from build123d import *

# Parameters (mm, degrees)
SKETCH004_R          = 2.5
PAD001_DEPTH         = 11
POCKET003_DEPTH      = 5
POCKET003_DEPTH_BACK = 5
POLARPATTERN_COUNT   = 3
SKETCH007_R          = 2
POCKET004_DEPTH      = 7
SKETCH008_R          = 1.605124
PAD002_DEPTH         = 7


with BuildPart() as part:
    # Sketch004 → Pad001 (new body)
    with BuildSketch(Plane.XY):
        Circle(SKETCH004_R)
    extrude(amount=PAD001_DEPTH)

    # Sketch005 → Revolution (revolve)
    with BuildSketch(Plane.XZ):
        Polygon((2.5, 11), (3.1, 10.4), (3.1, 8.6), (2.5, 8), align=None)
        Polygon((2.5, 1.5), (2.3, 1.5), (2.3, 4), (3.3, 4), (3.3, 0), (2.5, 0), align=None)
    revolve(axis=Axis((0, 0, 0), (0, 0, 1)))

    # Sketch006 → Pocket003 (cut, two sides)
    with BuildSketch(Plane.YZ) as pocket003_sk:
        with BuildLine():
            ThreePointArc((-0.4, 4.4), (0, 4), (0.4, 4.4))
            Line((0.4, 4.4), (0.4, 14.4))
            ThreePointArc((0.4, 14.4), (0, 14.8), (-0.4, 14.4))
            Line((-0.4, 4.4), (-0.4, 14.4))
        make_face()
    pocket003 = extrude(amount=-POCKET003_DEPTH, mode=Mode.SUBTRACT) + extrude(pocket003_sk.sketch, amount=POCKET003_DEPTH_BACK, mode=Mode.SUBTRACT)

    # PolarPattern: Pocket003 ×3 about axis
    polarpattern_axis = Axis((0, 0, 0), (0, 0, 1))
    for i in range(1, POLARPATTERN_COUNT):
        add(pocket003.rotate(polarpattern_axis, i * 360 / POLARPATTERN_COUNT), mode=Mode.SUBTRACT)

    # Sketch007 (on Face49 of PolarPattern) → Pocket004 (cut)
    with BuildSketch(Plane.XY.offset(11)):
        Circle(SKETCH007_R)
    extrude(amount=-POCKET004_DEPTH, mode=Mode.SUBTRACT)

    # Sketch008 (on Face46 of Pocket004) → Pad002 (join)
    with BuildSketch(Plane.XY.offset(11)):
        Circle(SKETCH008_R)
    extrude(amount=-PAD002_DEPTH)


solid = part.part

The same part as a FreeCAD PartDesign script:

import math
import FreeCAD as App
import Part
import Sketcher
from FreeCAD import Vector

doc = App.newDocument("Part")
body = doc.addObject("PartDesign::Body", "Body")

# Sketch on XY plane
sketch1 = body.newObject("Sketcher::SketchObject", "Sketch")
sketch1.AttachmentSupport = (doc.getObject("XY_Plane"), [""])
sketch1.MapMode = "FlatFace"
sketch1.addGeometry(Part.Circle(Vector(0, 0, 0), Vector(0, 0, 1), 2.5), False)
sketch1.addConstraint(Sketcher.Constraint("Coincident", 0, 3, -1, 1))
sketch1.addConstraint(Sketcher.Constraint("Diameter", 0, 5.0))
pad1 = body.newObject("PartDesign::Pad", "Pad")
pad1.Profile = sketch1
pad1.Length = 11

# Sketch on XZ plane
sketch2 = body.newObject("Sketcher::SketchObject", "Sketch001")
sketch2.AttachmentSupport = (doc.getObject("XZ_Plane"), [""])
sketch2.MapMode = "FlatFace"
sketch2.addGeometry(Part.LineSegment(Vector(3.1, 10.4, 0), Vector(2.5, 11, 0)), False)
sketch2.addGeometry(Part.LineSegment(Vector(2.5, 11, 0), Vector(2.5, 8, 0)), False)
sketch2.addGeometry(Part.LineSegment(Vector(2.5, 8, 0), Vector(3.1, 8.6, 0)), False)
sketch2.addGeometry(Part.LineSegment(Vector(3.1, 8.6, 0), Vector(3.1, 10.4, 0)), False)
sketch2.addGeometry(Part.LineSegment(Vector(2.3, 1.5, 0), Vector(2.5, 1.5, 0)), False)
sketch2.addGeometry(Part.LineSegment(Vector(2.5, 1.5, 0), Vector(2.5, 0, 0)), False)
sketch2.addGeometry(Part.LineSegment(Vector(2.5, 0, 0), Vector(3.3, 0, 0)), False)
sketch2.addGeometry(Part.LineSegment(Vector(3.3, 0, 0), Vector(3.3, 4, 0)), False)
sketch2.addGeometry(Part.LineSegment(Vector(3.3, 4, 0), Vector(2.3, 4, 0)), False)
sketch2.addGeometry(Part.LineSegment(Vector(2.3, 4, 0), Vector(2.3, 1.5, 0)), False)
sketch2.addConstraint(Sketcher.Constraint("Coincident", 0, 2, 1, 1))
sketch2.addConstraint(Sketcher.Constraint("Coincident", 1, 2, 2, 1))
sketch2.addConstraint(Sketcher.Constraint("Coincident", 2, 2, 3, 1))
sketch2.addConstraint(Sketcher.Constraint("Coincident", 3, 2, 0, 1))
sketch2.addConstraint(Sketcher.Constraint("Coincident", 4, 2, 5, 1))
sketch2.addConstraint(Sketcher.Constraint("Coincident", 5, 2, 6, 1))
sketch2.addConstraint(Sketcher.Constraint("Coincident", 6, 2, 7, 1))
sketch2.addConstraint(Sketcher.Constraint("Coincident", 7, 2, 8, 1))
sketch2.addConstraint(Sketcher.Constraint("Coincident", 8, 2, 9, 1))
sketch2.addConstraint(Sketcher.Constraint("Coincident", 9, 2, 4, 1))
sketch2.addConstraint(Sketcher.Constraint("Vertical", 1))
sketch2.addConstraint(Sketcher.Constraint("Vertical", 3))
sketch2.addConstraint(Sketcher.Constraint("Horizontal", 4))
sketch2.addConstraint(Sketcher.Constraint("Vertical", 5))
sketch2.addConstraint(Sketcher.Constraint("Horizontal", 6))
sketch2.addConstraint(Sketcher.Constraint("Vertical", 7))
sketch2.addConstraint(Sketcher.Constraint("Horizontal", 8))
sketch2.addConstraint(Sketcher.Constraint("Vertical", 9))
sketch2.addConstraint(Sketcher.Constraint("PointOnObject", 5, 2, -1))
sketch2.addConstraint(Sketcher.Constraint("Perpendicular", 0, 2))
sketch2.addConstraint(Sketcher.Constraint("Vertical", 1, 2, 4, 2))
sketch2.addConstraint(Sketcher.Constraint("Equal", 0, 2))
sketch2.addConstraint(Sketcher.Constraint("DistanceX", 8, 2, 8, 1, 1.0))
sketch2.addConstraint(Sketcher.Constraint("DistanceY", 1, 2, 1, 1, 3.0))
sketch2.addConstraint(Sketcher.Constraint("DistanceY", 7, 1, 7, 2, 4.0))
sketch2.addConstraint(Sketcher.Constraint("DistanceX", 4, 1, 4, 2, 0.2))
sketch2.addConstraint(Sketcher.Constraint("DistanceY", 3, 1, 3, 2, 1.8))
sketch2.addConstraint(Sketcher.Constraint("DistanceY", 5, 2, 5, 1, 1.5))
sketch2.addConstraint(Sketcher.Constraint("DistanceY", -1, 1, 0, 2, 11.0))
sketch2.addConstraint(Sketcher.Constraint("DistanceX", -1, 1, 0, 2, 2.5))
revolution = body.newObject("PartDesign::Revolution", "Revolution")
revolution.Profile = sketch2
revolution.ReferenceAxis = (sketch2, ["V_Axis"])
revolution.Angle = 360

# Sketch on YZ plane
sketch3 = body.newObject("Sketcher::SketchObject", "Sketch002")
sketch3.AttachmentSupport = (doc.getObject("YZ_Plane"), [""])
sketch3.MapMode = "FlatFace"
sketch3.addGeometry(Part.ArcOfCircle(Part.Circle(Vector(0, 4.4, 0), Vector(0, 0, 1), 0.4), math.radians(180), math.radians(360)), False)
sketch3.addGeometry(Part.LineSegment(Vector(0.4, 4.4, 0), Vector(0.4, 14.4, 0)), False)
sketch3.addGeometry(Part.ArcOfCircle(Part.Circle(Vector(0, 14.4, 0), Vector(0, 0, 1), 0.4), math.radians(0), math.radians(180)), False)
sketch3.addGeometry(Part.LineSegment(Vector(-0.4, 14.4, 0), Vector(-0.4, 4.4, 0)), False)
sketch3.addConstraint(Sketcher.Constraint("Tangent", 0, 2, 1, 1))
sketch3.addConstraint(Sketcher.Constraint("Tangent", 1, 2, 2, 1))
sketch3.addConstraint(Sketcher.Constraint("Tangent", 2, 2, 3, 1))
sketch3.addConstraint(Sketcher.Constraint("Tangent", 3, 2, 0, 1))
sketch3.addConstraint(Sketcher.Constraint("Vertical", 1))
sketch3.addConstraint(Sketcher.Constraint("Vertical", 3))
sketch3.addConstraint(Sketcher.Constraint("PointOnObject", 0, 3, -2))
sketch3.addConstraint(Sketcher.Constraint("Radius", 0, 0.4))
sketch3.addConstraint(Sketcher.Constraint("DistanceY", 1, 1, 1, 2, 10.0))
sketch3.addConstraint(Sketcher.Constraint("DistanceY", -1, 1, 0, 3, 4.4))
pocket1 = body.newObject("PartDesign::Pocket", "Pocket")
pocket1.Profile = sketch3
pocket1.Type = "ThroughAll"
pocket1.Midplane = True
doc.recompute()

polarpattern = body.newObject("PartDesign::PolarPattern", "PolarPattern")
polarpattern.Originals = [pocket1]
polarpattern.Axis = (doc.getObject("Z_Axis"), [""])
polarpattern.Angle = 360
polarpattern.Occurrences = 3
body.Tip = polarpattern

# Sketch on XY plane
sketch4 = body.newObject("Sketcher::SketchObject", "Sketch003")
sketch4.AttachmentSupport = (doc.getObject("XY_Plane"), [""])
sketch4.MapMode = "FlatFace"
sketch4.AttachmentOffset = App.Placement(Vector(0, 0, 11), App.Rotation())
sketch4.addGeometry(Part.Circle(Vector(0, 0, 0), Vector(0, 0, 1), 2), False)
sketch4.addConstraint(Sketcher.Constraint("Coincident", 0, 3, -1, 1))
sketch4.addConstraint(Sketcher.Constraint("Diameter", 0, 4.0))
pocket2 = body.newObject("PartDesign::Pocket", "Pocket001")
pocket2.Profile = sketch4
pocket2.Length = 7

# Sketch on XY plane
sketch5 = body.newObject("Sketcher::SketchObject", "Sketch004")
sketch5.AttachmentSupport = (doc.getObject("XY_Plane"), [""])
sketch5.MapMode = "FlatFace"
sketch5.AttachmentOffset = App.Placement(Vector(0, 0, 11), App.Rotation())
sketch5.addGeometry(Part.Circle(Vector(0, 0, 0), Vector(0, 0, 1), 1.6), False)
sketch5.addConstraint(Sketcher.Constraint("Coincident", 0, 3, -1, 1))
sketch5.addConstraint(Sketcher.Constraint("Diameter", 0, 3.210248))
pad2 = body.newObject("PartDesign::Pad", "Pad001")
pad2.Profile = sketch5
pad2.Length = 7
pad2.Reversed = True

doc.recompute()
